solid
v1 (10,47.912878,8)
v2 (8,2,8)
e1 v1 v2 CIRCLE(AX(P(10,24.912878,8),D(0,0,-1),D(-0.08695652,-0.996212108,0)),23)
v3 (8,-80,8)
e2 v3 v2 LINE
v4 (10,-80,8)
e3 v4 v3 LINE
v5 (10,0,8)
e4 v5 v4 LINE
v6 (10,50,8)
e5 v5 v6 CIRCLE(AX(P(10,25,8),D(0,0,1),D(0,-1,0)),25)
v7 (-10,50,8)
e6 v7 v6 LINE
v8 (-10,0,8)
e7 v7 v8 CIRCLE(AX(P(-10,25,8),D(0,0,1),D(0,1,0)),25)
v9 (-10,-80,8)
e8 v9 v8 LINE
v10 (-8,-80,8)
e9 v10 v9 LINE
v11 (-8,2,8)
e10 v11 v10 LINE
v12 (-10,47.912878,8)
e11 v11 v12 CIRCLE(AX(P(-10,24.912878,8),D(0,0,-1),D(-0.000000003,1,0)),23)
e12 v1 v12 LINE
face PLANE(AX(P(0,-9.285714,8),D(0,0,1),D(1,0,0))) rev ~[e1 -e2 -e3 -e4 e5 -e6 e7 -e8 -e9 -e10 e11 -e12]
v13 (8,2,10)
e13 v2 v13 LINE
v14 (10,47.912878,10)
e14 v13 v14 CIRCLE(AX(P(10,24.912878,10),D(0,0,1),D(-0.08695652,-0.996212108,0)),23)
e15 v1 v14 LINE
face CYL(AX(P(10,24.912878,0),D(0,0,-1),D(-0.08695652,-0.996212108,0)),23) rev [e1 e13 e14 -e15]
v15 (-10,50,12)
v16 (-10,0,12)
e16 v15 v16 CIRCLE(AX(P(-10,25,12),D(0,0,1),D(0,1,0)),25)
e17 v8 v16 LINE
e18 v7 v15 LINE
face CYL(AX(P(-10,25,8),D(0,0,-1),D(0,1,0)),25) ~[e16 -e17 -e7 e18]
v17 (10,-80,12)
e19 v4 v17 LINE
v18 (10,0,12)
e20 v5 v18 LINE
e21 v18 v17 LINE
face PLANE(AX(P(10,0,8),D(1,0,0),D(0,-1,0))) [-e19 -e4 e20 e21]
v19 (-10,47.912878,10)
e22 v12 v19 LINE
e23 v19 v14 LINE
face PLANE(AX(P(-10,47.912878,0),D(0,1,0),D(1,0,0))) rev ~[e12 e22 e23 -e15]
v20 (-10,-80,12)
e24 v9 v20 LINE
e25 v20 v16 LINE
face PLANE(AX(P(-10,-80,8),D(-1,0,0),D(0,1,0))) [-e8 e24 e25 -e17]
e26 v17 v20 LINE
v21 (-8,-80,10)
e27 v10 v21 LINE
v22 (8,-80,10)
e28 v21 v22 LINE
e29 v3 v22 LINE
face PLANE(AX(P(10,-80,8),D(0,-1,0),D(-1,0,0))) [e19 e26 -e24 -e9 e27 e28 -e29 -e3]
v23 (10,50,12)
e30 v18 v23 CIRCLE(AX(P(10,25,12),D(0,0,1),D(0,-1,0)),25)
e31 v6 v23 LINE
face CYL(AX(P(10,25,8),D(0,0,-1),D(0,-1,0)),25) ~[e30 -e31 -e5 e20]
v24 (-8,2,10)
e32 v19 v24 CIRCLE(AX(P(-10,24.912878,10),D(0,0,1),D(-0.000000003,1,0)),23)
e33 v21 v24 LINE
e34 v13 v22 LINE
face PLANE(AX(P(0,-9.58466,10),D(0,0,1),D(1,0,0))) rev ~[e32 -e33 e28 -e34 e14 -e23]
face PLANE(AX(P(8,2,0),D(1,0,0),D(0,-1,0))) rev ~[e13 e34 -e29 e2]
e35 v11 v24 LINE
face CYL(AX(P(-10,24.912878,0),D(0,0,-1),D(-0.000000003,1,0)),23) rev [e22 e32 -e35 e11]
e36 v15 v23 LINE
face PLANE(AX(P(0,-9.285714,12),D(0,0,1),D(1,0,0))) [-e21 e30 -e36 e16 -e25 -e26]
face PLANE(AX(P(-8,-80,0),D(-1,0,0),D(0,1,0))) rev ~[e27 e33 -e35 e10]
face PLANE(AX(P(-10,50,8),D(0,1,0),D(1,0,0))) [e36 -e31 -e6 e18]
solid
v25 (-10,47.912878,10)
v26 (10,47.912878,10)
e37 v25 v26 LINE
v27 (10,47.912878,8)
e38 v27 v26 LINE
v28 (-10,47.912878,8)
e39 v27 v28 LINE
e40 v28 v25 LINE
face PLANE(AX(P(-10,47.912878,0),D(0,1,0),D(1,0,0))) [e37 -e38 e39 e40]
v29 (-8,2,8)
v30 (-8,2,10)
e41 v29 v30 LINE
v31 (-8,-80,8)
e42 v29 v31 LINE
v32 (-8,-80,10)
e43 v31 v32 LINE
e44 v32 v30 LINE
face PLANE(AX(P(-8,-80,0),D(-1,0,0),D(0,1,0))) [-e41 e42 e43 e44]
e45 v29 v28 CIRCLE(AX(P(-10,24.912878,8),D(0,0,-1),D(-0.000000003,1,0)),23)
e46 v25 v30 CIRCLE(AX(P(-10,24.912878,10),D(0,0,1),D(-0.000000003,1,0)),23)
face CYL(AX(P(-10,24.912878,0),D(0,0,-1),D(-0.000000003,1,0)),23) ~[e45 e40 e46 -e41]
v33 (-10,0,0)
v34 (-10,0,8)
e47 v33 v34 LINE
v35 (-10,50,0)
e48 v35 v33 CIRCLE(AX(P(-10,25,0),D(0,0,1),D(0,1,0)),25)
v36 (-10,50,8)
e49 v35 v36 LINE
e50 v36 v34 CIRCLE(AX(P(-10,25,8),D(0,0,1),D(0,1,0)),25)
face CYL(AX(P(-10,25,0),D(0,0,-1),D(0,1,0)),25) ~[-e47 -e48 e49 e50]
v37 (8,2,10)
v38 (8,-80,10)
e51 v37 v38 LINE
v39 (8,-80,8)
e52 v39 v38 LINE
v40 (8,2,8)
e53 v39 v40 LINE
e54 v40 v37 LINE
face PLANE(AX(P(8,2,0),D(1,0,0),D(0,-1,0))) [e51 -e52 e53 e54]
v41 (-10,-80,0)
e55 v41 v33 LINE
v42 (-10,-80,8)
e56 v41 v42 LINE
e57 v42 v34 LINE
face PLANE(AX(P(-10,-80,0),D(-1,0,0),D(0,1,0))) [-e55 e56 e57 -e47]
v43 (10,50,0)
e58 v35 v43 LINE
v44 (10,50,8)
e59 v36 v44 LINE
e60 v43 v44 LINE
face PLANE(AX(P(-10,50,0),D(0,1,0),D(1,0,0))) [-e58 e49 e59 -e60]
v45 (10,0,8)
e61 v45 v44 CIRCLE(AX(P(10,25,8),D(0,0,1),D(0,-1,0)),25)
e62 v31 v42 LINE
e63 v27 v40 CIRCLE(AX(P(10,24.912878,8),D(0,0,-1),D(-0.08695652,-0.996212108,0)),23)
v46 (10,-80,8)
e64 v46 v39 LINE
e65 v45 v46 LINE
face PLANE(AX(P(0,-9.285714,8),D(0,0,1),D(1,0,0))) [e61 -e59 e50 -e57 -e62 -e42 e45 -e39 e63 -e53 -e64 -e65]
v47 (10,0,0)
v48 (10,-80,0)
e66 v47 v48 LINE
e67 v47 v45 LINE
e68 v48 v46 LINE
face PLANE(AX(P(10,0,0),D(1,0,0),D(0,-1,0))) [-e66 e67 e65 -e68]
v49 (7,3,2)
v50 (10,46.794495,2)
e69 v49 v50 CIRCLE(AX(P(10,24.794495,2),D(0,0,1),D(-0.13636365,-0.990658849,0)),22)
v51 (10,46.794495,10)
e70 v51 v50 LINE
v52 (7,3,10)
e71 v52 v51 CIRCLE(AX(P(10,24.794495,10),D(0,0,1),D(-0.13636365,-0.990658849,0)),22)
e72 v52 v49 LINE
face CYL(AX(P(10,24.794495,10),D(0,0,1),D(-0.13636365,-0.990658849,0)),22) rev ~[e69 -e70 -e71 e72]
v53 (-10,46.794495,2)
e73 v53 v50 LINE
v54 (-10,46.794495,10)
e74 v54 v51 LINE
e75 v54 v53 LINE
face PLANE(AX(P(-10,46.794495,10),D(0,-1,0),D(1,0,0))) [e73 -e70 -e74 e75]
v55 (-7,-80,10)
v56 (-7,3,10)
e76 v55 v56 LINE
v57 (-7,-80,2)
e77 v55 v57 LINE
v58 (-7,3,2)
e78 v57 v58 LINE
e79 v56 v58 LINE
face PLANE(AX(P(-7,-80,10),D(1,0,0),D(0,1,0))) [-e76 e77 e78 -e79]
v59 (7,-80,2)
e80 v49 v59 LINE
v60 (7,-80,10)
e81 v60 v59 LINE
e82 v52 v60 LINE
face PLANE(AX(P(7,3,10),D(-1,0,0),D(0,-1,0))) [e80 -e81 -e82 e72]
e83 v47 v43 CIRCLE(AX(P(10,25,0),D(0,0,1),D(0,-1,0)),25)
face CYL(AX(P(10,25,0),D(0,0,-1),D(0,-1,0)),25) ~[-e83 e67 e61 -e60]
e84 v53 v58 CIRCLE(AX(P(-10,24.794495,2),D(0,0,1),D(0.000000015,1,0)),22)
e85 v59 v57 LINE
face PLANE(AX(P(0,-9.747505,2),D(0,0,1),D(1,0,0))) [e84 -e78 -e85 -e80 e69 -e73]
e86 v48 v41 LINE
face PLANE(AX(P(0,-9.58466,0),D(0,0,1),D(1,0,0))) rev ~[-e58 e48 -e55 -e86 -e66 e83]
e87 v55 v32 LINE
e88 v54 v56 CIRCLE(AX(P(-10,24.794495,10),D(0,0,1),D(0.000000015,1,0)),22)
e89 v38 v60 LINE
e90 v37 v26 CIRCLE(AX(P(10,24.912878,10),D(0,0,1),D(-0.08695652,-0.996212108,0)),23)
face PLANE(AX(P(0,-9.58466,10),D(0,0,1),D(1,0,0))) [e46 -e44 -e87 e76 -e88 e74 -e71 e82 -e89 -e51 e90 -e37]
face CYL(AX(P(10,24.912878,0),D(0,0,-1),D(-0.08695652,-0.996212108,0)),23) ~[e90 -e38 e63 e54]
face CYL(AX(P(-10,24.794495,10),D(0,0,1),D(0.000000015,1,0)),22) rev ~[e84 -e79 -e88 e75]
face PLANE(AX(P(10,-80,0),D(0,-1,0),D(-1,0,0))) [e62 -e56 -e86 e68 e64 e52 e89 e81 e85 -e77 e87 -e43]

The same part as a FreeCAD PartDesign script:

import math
import FreeCAD as App
import Part
import Sketcher

doc = App.newDocument("Part")
body = doc.addObject("PartDesign::Body", "Body")

sketch1 = body.newObject("Sketcher::SketchObject", "Sketch")
sketch1.AttachmentSupport = (doc.getObject("XY_Plane"), [""])
sketch1.MapMode = "FlatFace"
sketch1.addGeometry(Part.ArcOfCircle(Part.Circle(App.Vector(-10, 25, 0), App.Vector(0, 0, 1), 25), math.radians(90), math.radians(270)), False)
sketch1.addGeometry(Part.LineSegment(App.Vector(-10, 0, 0), App.Vector(-10, -80, 0)), False)
sketch1.addGeometry(Part.LineSegment(App.Vector(-10, -80, 0), App.Vector(10, -80, 0)), False)
sketch1.addGeometry(Part.LineSegment(App.Vector(10, -80, 0), App.Vector(10, 0, 0)), False)
sketch1.addGeometry(Part.ArcOfCircle(Part.Circle(App.Vector(10, 25, 0), App.Vector(0, 0, 1), 25), math.radians(-90), math.radians(90)), False)
sketch1.addGeometry(Part.LineSegment(App.Vector(10, 50, 0), App.Vector(-10, 50, 0)), False)
sketch1.addConstraint(Sketcher.Constraint("Coincident", 0, 2, 1, 1))
sketch1.addConstraint(Sketcher.Constraint("Coincident", 1, 2, 2, 1))
sketch1.addConstraint(Sketcher.Constraint("Coincident", 2, 2, 3, 1))
sketch1.addConstraint(Sketcher.Constraint("Coincident", 3, 2, 4, 1))
sketch1.addConstraint(Sketcher.Constraint("Tangent", 4, 2, 5, 1))
sketch1.addConstraint(Sketcher.Constraint("Tangent", 5, 2, 0, 1))
sketch1.addConstraint(Sketcher.Constraint("Vertical", 1))
sketch1.addConstraint(Sketcher.Constraint("Horizontal", 2))
sketch1.addConstraint(Sketcher.Constraint("Vertical", 3))
sketch1.addConstraint(Sketcher.Constraint("Horizontal", 5))
sketch1.addConstraint(Sketcher.Constraint("Equal", 0, 4))
sketch1.addConstraint(Sketcher.Constraint("Symmetric", 0, 2, 3, 2, -1, 1))
sketch1.addConstraint(Sketcher.Constraint("Vertical", 4, 3, 2, 2))
sketch1.addConstraint(Sketcher.Constraint("Vertical", 1, 2, 5, 2))
sketch1.addConstraint(Sketcher.Constraint("Radius", 0, 25.0))
sketch1.addConstraint(Sketcher.Constraint("DistanceX", 2, 1, 2, 2, 20.0))
sketch1.addConstraint(Sketcher.Constraint("DistanceY", 1, 2, 1, 1, 80.0))
pad1 = body.newObject("PartDesign::Pad", "Pad")
pad1.Profile = sketch1
pad1.Length = 8

sketch2 = body.newObject("Sketcher::SketchObject", "Sketch001")
sketch2.AttachmentSupport = (doc.getObject("XY_Plane"), [""])
sketch2.MapMode = "FlatFace"
sketch2.addGeometry(Part.ArcOfCircle(Part.Circle(App.Vector(-10, 24.912878, 0), App.Vector(0, 0, 1), 23), math.radians(90), math.radians(274.988542)), False)
sketch2.addGeometry(Part.LineSegment(App.Vector(-8, 2, 0), App.Vector(-8, -80, 0)), False)
sketch2.addGeometry(Part.LineSegment(App.Vector(-8, -80, 0), App.Vector(8, -80, 0)), False)
sketch2.addGeometry(Part.LineSegment(App.Vector(8, -80, 0), App.Vector(8, 2, 0)), False)
sketch2.addGeometry(Part.ArcOfCircle(Part.Circle(App.Vector(10, 24.912878, 0), App.Vector(0, 0, 1), 23), math.radians(-94.988542), math.radians(90)), False)
sketch2.addGeometry(Part.LineSegment(App.Vector(10, 47.912878, 0), App.Vector(-10, 47.912878, 0)), False)
sketch2.addConstraint(Sketcher.Constraint("Coincident", 0, 2, 1, 1))
sketch2.addConstraint(Sketcher.Constraint("Coincident", 1, 2, 2, 1))
sketch2.addConstraint(Sketcher.Constraint("Coincident", 2, 2, 3, 1))
sketch2.addConstraint(Sketcher.Constraint("Coincident", 3, 2, 4, 1))
sketch2.addConstraint(Sketcher.Constraint("Tangent", 4, 2, 5, 1))
sketch2.addConstraint(Sketcher.Constraint("Tangent", 5, 2, 0, 1))
sketch2.addConstraint(Sketcher.Constraint("Vertical", 1))
sketch2.addConstraint(Sketcher.Constraint("Horizontal", 2))
sketch2.addConstraint(Sketcher.Constraint("Vertical", 3))
sketch2.addConstraint(Sketcher.Constraint("Horizontal", 5))
sketch2.addConstraint(Sketcher.Constraint("Equal", 0, 4))
sketch2.addConstraint(Sketcher.Constraint("Symmetric", 0, 2, 3, 2, -2))
sketch2.addConstraint(Sketcher.Constraint("Radius", 0, 23.0))
sketch2.addConstraint(Sketcher.Constraint("DistanceX", 2, 1, 2, 2, 16.0))
sketch2.addConstraint(Sketcher.Constraint("DistanceX", 5, 2, 5, 1, 20.0))
sketch2.addConstraint(Sketcher.Constraint("DistanceY", 1, 2, 1, 1, 82.0))
sketch2.addConstraint(Sketcher.Constraint("DistanceY", -1, 1, 0, 2, 2.0))
pad2 = body.newObject("PartDesign::Pad", "Pad001")
pad2.Profile = sketch2
pad2.Length = 10

sketch3 = body.newObject("Sketcher::SketchObject", "Sketch002")
sketch3.AttachmentSupport = (doc.getObject("XY_Plane"), [""])
sketch3.MapMode = "FlatFace"
sketch3.AttachmentOffset = App.Placement(App.Vector(0, 0, 10), App.Rotation())
sketch3.addGeometry(Part.ArcOfCircle(Part.Circle(App.Vector(-10, 24.794495, 0), App.Vector(0, 0, 1), 22), math.radians(89.999999), math.radians(277.837481)), False)
sketch3.addGeometry(Part.LineSegment(App.Vector(-7, 3, 0), App.Vector(-7, -80, 0)), False)
sketch3.addGeometry(Part.LineSegment(App.Vector(-7, -80, 0), App.Vector(7, -80, 0)), False)
sketch3.addGeometry(Part.LineSegment(App.Vector(7, -80, 0), App.Vector(7, 3, 0)), False)
sketch3.addGeometry(Part.ArcOfCircle(Part.Circle(App.Vector(10, 24.794495, 0), App.Vector(0, 0, 1), 22), math.radians(-97.837481), math.radians(90.000001)), False)
sketch3.addGeometry(Part.LineSegment(App.Vector(10, 46.794495, 0), App.Vector(-10, 46.794495, 0)), False)
sketch3.addConstraint(Sketcher.Constraint("Coincident", 0, 2, 1, 1))
sketch3.addConstraint(Sketcher.Constraint("Coincident", 1, 2, 2, 1))
sketch3.addConstraint(Sketcher.Constraint("Coincident", 2, 2, 3, 1))
sketch3.addConstraint(Sketcher.Constraint("Coincident", 3, 2, 4, 1))
sketch3.addConstraint(Sketcher.Constraint("Tangent", 4, 2, 5, 1))
sketch3.addConstraint(Sketcher.Constraint("Tangent", 5, 2, 0, 1))
sketch3.addConstraint(Sketcher.Constraint("Vertical", 1))
sketch3.addConstraint(Sketcher.Constraint("Horizontal", 2))
sketch3.addConstraint(Sketcher.Constraint("Vertical", 3))
sketch3.addConstraint(Sketcher.Constraint("Horizontal", 5))
sketch3.addConstraint(Sketcher.Constraint("Equal", 0, 4))
sketch3.addConstraint(Sketcher.Constraint("Symmetric", 0, 2, 3, 2, -2))
sketch3.addConstraint(Sketcher.Constraint("Radius", 0, 22.0))
sketch3.addConstraint(Sketcher.Constraint("DistanceX", 2, 1, 2, 2, 14.0))
sketch3.addConstraint(Sketcher.Constraint("DistanceX", 5, 2, 5, 1, 20.0))
sketch3.addConstraint(Sketcher.Constraint("DistanceY", 1, 2, 1, 1, 83.0))
sketch3.addConstraint(Sketcher.Constraint("DistanceY", -1, 1, 0, 2, 3.0))
pocket1 = body.newObject("PartDesign::Pocket", "Pocket")
pocket1.Profile = sketch3
pocket1.Length = 8
body2 = doc.addObject("PartDesign::Body", "Body001")

sketch4 = body2.newObject("Sketcher::SketchObject", "Sketch003")
sketch4.AttachmentSupport = (doc.getObject("XY_Plane001"), [""])
sketch4.MapMode = "FlatFace"
sketch4.AttachmentOffset = App.Placement(App.Vector(0, 0, 8), App.Rotation())
sketch4.addGeometry(Part.ArcOfCircle(Part.Circle(App.Vector(-10, 25, 0), App.Vector(0, 0, 1), 25), math.radians(90), math.radians(270)), False)
sketch4.addGeometry(Part.LineSegment(App.Vector(-10, 0, 0), App.Vector(-10, -80, 0)), False)
sketch4.addGeometry(Part.LineSegment(App.Vector(-10, -80, 0), App.Vector(10, -80, 0)), False)
sketch4.addGeometry(Part.LineSegment(App.Vector(10, -80, 0), App.Vector(10, 0, 0)), False)
sketch4.addGeometry(Part.ArcOfCircle(Part.Circle(App.Vector(10, 25, 0), App.Vector(0, 0, 1), 25), math.radians(-90), math.radians(90)), False)
sketch4.addGeometry(Part.LineSegment(App.Vector(10, 50, 0), App.Vector(-10, 50, 0)), False)
sketch4.addConstraint(Sketcher.Constraint("Coincident", 0, 2, 1, 1))
sketch4.addConstraint(Sketcher.Constraint("Coincident", 1, 2, 2, 1))
sketch4.addConstraint(Sketcher.Constraint("Coincident", 2, 2, 3, 1))
sketch4.addConstraint(Sketcher.Constraint("Coincident", 3, 2, 4, 1))
sketch4.addConstraint(Sketcher.Constraint("Tangent", 4, 2, 5, 1))
sketch4.addConstraint(Sketcher.Constraint("Tangent", 5, 2, 0, 1))
sketch4.addConstraint(Sketcher.Constraint("Vertical", 1))
sketch4.addConstraint(Sketcher.Constraint("Horizontal", 2))
sketch4.addConstraint(Sketcher.Constraint("Vertical", 3))
sketch4.addConstraint(Sketcher.Constraint("Horizontal", 5))
sketch4.addConstraint(Sketcher.Constraint("Equal", 0, 4))
sketch4.addConstraint(Sketcher.Constraint("Symmetric", 0, 2, 3, 2, -1, 1))
sketch4.addConstraint(Sketcher.Constraint("Vertical", 4, 3, 2, 2))
sketch4.addConstraint(Sketcher.Constraint("Vertical", 1, 2, 5, 2))
sketch4.addConstraint(Sketcher.Constraint("Radius", 0, 25.0))
sketch4.addConstraint(Sketcher.Constraint("DistanceX", 2, 1, 2, 2, 20.0))
sketch4.addConstraint(Sketcher.Constraint("DistanceY", 1, 2, 1, 1, 80.0))
pad3 = body2.newObject("PartDesign::Pad", "Pad002")
pad3.Profile = sketch4
pad3.Length = 4

sketch5 = body2.newObject("Sketcher::SketchObject", "Sketch004")
sketch5.AttachmentSupport = (doc.getObject("XY_Plane001"), [""])
sketch5.MapMode = "FlatFace"
sketch5.AttachmentOffset = App.Placement(App.Vector(0, 0, 8), App.Rotation())
sketch5.addGeometry(Part.ArcOfCircle(Part.Circle(App.Vector(-10, 24.794495, 0), App.Vector(0, 0, 1), 22), math.radians(89.999999), math.radians(277.837481)), False)
sketch5.addGeometry(Part.LineSegment(App.Vector(-7, 3, 0), App.Vector(-7, -80, 0)), False)
sketch5.addGeometry(Part.LineSegment(App.Vector(-7, -80, 0), App.Vector(7, -80, 0)), False)
sketch5.addGeometry(Part.LineSegment(App.Vector(7, -80, 0), App.Vector(7, 3, 0)), False)
sketch5.addGeometry(Part.ArcOfCircle(Part.Circle(App.Vector(10, 24.794495, 0), App.Vector(0, 0, 1), 22), math.radians(-97.837481), math.radians(90.000001)), False)
sketch5.addGeometry(Part.LineSegment(App.Vector(10, 46.794495, 0), App.Vector(-10, 46.794495, 0)), False)
sketch5.addConstraint(Sketcher.Constraint("Coincident", 0, 2, 1, 1))
sketch5.addConstraint(Sketcher.Constraint("Coincident", 1, 2, 2, 1))
sketch5.addConstraint(Sketcher.Constraint("Coincident", 2, 2, 3, 1))
sketch5.addConstraint(Sketcher.Constraint("Coincident", 3, 2, 4, 1))
sketch5.addConstraint(Sketcher.Constraint("Tangent", 4, 2, 5, 1))
sketch5.addConstraint(Sketcher.Constraint("Tangent", 5, 2, 0, 1))
sketch5.addConstraint(Sketcher.Constraint("Vertical", 1))
sketch5.addConstraint(Sketcher.Constraint("Horizontal", 2))
sketch5.addConstraint(Sketcher.Constraint("Vertical", 3))
sketch5.addConstraint(Sketcher.Constraint("Horizontal", 5))
sketch5.addConstraint(Sketcher.Constraint("Equal", 0, 4))
sketch5.addConstraint(Sketcher.Constraint("Symmetric", 0, 2, 3, 2, -2))
sketch5.addConstraint(Sketcher.Constraint("Radius", 0, 22.0))
sketch5.addConstraint(Sketcher.Constraint("DistanceX", 2, 1, 2, 2, 14.0))
sketch5.addConstraint(Sketcher.Constraint("DistanceX", 5, 2, 5, 1, 20.0))
sketch5.addConstraint(Sketcher.Constraint("DistanceY", 1, 2, 1, 1, 83.0))
sketch5.addConstraint(Sketcher.Constraint("DistanceY", -1, 1, 0, 2, 3.0))
pocket2 = body2.newObject("PartDesign::Pocket", "Pocket001")
pocket2.Profile = sketch5
pocket2.Length = 2
pocket2.Reversed = True
doc.recompute()

boolean = body2.newObject("PartDesign::Boolean", "Boolean")
boolean.Type = "Cut"
boolean.addObjects([body])
body3 = doc.addObject("PartDesign::Body", "Body002")

sketch6 = body3.newObject("Sketcher::SketchObject", "Sketch005")
sketch6.AttachmentSupport = (doc.getObject("XY_Plane002"), [""])
sketch6.MapMode = "FlatFace"
sketch6.addGeometry(Part.ArcOfCircle(Part.Circle(App.Vector(-10, 25, 0), App.Vector(0, 0, 1), 25), math.radians(90), math.radians(270)), False)
sketch6.addGeometry(Part.LineSegment(App.Vector(-10, 0, 0), App.Vector(-10, -80, 0)), False)
sketch6.addGeometry(Part.LineSegment(App.Vector(-10, -80, 0), App.Vector(10, -80, 0)), False)
sketch6.addGeometry(Part.LineSegment(App.Vector(10, -80, 0), App.Vector(10, 0, 0)), False)
sketch6.addGeometry(Part.ArcOfCircle(Part.Circle(App.Vector(10, 25, 0), App.Vector(0, 0, 1), 25), math.radians(-90), math.radians(90)), False)
sketch6.addGeometry(Part.LineSegment(App.Vector(10, 50, 0), App.Vector(-10, 50, 0)), False)
sketch6.addConstraint(Sketcher.Constraint("Coincident", 0, 2, 1, 1))
sketch6.addConstraint(Sketcher.Constraint("Coincident", 1, 2, 2, 1))
sketch6.addConstraint(Sketcher.Constraint("Coincident", 2, 2, 3, 1))
sketch6.addConstraint(Sketcher.Constraint("Coincident", 3, 2, 4, 1))
sketch6.addConstraint(Sketcher.Constraint("Tangent", 4, 2, 5, 1))
sketch6.addConstraint(Sketcher.Constraint("Tangent", 5, 2, 0, 1))
sketch6.addConstraint(Sketcher.Constraint("Vertical", 1))
sketch6.addConstraint(Sketcher.Constraint("Horizontal", 2))
sketch6.addConstraint(Sketcher.Constraint("Vertical", 3))
sketch6.addConstraint(Sketcher.Constraint("Horizontal", 5))
sketch6.addConstraint(Sketcher.Constraint("Equal", 0, 4))
sketch6.addConstraint(Sketcher.Constraint("Symmetric", 0, 2, 3, 2, -1, 1))
sketch6.addConstraint(Sketcher.Constraint("Vertical", 4, 3, 2, 2))
sketch6.addConstraint(Sketcher.Constraint("Vertical", 1, 2, 5, 2))
sketch6.addConstraint(Sketcher.Constraint("Radius", 0, 25.0))
sketch6.addConstraint(Sketcher.Constraint("DistanceX", 2, 1, 2, 2, 20.0))
sketch6.addConstraint(Sketcher.Constraint("DistanceY", 1, 2, 1, 1, 80.0))
pad4 = body3.newObject("PartDesign::Pad", "Pad003")
pad4.Profile = sketch6
pad4.Length = 8

sketch7 = body3.newObject("Sketcher::SketchObject", "Sketch006")
sketch7.AttachmentSupport = (doc.getObject("XY_Plane002"), [""])
sketch7.MapMode = "FlatFace"
sketch7.addGeometry(Part.ArcOfCircle(Part.Circle(App.Vector(-10, 24.912878, 0), App.Vector(0, 0, 1), 23), math.radians(90), math.radians(274.988542)), False)
sketch7.addGeometry(Part.LineSegment(App.Vector(-8, 2, 0), App.Vector(-8, -80, 0)), False)
sketch7.addGeometry(Part.LineSegment(App.Vector(-8, -80, 0), App.Vector(8, -80, 0)), False)
sketch7.addGeometry(Part.LineSegment(App.Vector(8, -80, 0), App.Vector(8, 2, 0)), False)
sketch7.addGeometry(Part.ArcOfCircle(Part.Circle(App.Vector(10, 24.912878, 0), App.Vector(0, 0, 1), 23), math.radians(-94.988542), math.radians(90)), False)
sketch7.addGeometry(Part.LineSegment(App.Vector(10, 47.912878, 0), App.Vector(-10, 47.912878, 0)), False)
sketch7.addConstraint(Sketcher.Constraint("Coincident", 0, 2, 1, 1))
sketch7.addConstraint(Sketcher.Constraint("Coincident", 1, 2, 2, 1))
sketch7.addConstraint(Sketcher.Constraint("Coincident", 2, 2, 3, 1))
sketch7.addConstraint(Sketcher.Constraint("Coincident", 3, 2, 4, 1))
sketch7.addConstraint(Sketcher.Constraint("Tangent", 4, 2, 5, 1))
sketch7.addConstraint(Sketcher.Constraint("Tangent", 5, 2, 0, 1))
sketch7.addConstraint(Sketcher.Constraint("Vertical", 1))
sketch7.addConstraint(Sketcher.Constraint("Horizontal", 2))
sketch7.addConstraint(Sketcher.Constraint("Vertical", 3))
sketch7.addConstraint(Sketcher.Constraint("Horizontal", 5))
sketch7.addConstraint(Sketcher.Constraint("Equal", 0, 4))
sketch7.addConstraint(Sketcher.Constraint("Symmetric", 0, 2, 3, 2, -2))
sketch7.addConstraint(Sketcher.Constraint("Radius", 0, 23.0))
sketch7.addConstraint(Sketcher.Constraint("DistanceX", 2, 1, 2, 2, 16.0))
sketch7.addConstraint(Sketcher.Constraint("DistanceX", 5, 2, 5, 1, 20.0))
sketch7.addConstraint(Sketcher.Constraint("DistanceY", 1, 2, 1, 1, 82.0))
sketch7.addConstraint(Sketcher.Constraint("DistanceY", -1, 1, 0, 2, 2.0))
pad5 = body3.newObject("PartDesign::Pad", "Pad004")
pad5.Profile = sketch7
pad5.Length = 10

sketch8 = body3.newObject("Sketcher::SketchObject", "Sketch007")
sketch8.AttachmentSupport = (doc.getObject("XY_Plane002"), [""])
sketch8.MapMode = "FlatFace"
sketch8.AttachmentOffset = App.Placement(App.Vector(0, 0, 10), App.Rotation())
sketch8.addGeometry(Part.ArcOfCircle(Part.Circle(App.Vector(-10, 24.794495, 0), App.Vector(0, 0, 1), 22), math.radians(89.999999), math.radians(277.837481)), False)
sketch8.addGeometry(Part.LineSegment(App.Vector(-7, 3, 0), App.Vector(-7, -80, 0)), False)
sketch8.addGeometry(Part.LineSegment(App.Vector(-7, -80, 0), App.Vector(7, -80, 0)), False)
sketch8.addGeometry(Part.LineSegment(App.Vector(7, -80, 0), App.Vector(7, 3, 0)), False)
sketch8.addGeometry(Part.ArcOfCircle(Part.Circle(App.Vector(10, 24.794495, 0), App.Vector(0, 0, 1), 22), math.radians(-97.837481), math.radians(90.000001)), False)
sketch8.addGeometry(Part.LineSegment(App.Vector(10, 46.794495, 0), App.Vector(-10, 46.794495, 0)), False)
sketch8.addConstraint(Sketcher.Constraint("Coincident", 0, 2, 1, 1))
sketch8.addConstraint(Sketcher.Constraint("Coincident", 1, 2, 2, 1))
sketch8.addConstraint(Sketcher.Constraint("Coincident", 2, 2, 3, 1))
sketch8.addConstraint(Sketcher.Constraint("Coincident", 3, 2, 4, 1))
sketch8.addConstraint(Sketcher.Constraint("Tangent", 4, 2, 5, 1))
sketch8.addConstraint(Sketcher.Constraint("Tangent", 5, 2, 0, 1))
sketch8.addConstraint(Sketcher.Constraint("Vertical", 1))
sketch8.addConstraint(Sketcher.Constraint("Horizontal", 2))
sketch8.addConstraint(Sketcher.Constraint("Vertical", 3))
sketch8.addConstraint(Sketcher.Constraint("Horizontal", 5))
sketch8.addConstraint(Sketcher.Constraint("Equal", 0, 4))
sketch8.addConstraint(Sketcher.Constraint("Symmetric", 0, 2, 3, 2, -2))
sketch8.addConstraint(Sketcher.Constraint("Radius", 0, 22.0))
sketch8.addConstraint(Sketcher.Constraint("DistanceX", 2, 1, 2, 2, 14.0))
sketch8.addConstraint(Sketcher.Constraint("DistanceX", 5, 2, 5, 1, 20.0))
sketch8.addConstraint(Sketcher.Constraint("DistanceY", 1, 2, 1, 1, 83.0))
sketch8.addConstraint(Sketcher.Constraint("DistanceY", -1, 1, 0, 2, 3.0))
pocket3 = body3.newObject("PartDesign::Pocket", "Pocket002")
pocket3.Profile = sketch8
pocket3.Length = 8

doc.recompute()
